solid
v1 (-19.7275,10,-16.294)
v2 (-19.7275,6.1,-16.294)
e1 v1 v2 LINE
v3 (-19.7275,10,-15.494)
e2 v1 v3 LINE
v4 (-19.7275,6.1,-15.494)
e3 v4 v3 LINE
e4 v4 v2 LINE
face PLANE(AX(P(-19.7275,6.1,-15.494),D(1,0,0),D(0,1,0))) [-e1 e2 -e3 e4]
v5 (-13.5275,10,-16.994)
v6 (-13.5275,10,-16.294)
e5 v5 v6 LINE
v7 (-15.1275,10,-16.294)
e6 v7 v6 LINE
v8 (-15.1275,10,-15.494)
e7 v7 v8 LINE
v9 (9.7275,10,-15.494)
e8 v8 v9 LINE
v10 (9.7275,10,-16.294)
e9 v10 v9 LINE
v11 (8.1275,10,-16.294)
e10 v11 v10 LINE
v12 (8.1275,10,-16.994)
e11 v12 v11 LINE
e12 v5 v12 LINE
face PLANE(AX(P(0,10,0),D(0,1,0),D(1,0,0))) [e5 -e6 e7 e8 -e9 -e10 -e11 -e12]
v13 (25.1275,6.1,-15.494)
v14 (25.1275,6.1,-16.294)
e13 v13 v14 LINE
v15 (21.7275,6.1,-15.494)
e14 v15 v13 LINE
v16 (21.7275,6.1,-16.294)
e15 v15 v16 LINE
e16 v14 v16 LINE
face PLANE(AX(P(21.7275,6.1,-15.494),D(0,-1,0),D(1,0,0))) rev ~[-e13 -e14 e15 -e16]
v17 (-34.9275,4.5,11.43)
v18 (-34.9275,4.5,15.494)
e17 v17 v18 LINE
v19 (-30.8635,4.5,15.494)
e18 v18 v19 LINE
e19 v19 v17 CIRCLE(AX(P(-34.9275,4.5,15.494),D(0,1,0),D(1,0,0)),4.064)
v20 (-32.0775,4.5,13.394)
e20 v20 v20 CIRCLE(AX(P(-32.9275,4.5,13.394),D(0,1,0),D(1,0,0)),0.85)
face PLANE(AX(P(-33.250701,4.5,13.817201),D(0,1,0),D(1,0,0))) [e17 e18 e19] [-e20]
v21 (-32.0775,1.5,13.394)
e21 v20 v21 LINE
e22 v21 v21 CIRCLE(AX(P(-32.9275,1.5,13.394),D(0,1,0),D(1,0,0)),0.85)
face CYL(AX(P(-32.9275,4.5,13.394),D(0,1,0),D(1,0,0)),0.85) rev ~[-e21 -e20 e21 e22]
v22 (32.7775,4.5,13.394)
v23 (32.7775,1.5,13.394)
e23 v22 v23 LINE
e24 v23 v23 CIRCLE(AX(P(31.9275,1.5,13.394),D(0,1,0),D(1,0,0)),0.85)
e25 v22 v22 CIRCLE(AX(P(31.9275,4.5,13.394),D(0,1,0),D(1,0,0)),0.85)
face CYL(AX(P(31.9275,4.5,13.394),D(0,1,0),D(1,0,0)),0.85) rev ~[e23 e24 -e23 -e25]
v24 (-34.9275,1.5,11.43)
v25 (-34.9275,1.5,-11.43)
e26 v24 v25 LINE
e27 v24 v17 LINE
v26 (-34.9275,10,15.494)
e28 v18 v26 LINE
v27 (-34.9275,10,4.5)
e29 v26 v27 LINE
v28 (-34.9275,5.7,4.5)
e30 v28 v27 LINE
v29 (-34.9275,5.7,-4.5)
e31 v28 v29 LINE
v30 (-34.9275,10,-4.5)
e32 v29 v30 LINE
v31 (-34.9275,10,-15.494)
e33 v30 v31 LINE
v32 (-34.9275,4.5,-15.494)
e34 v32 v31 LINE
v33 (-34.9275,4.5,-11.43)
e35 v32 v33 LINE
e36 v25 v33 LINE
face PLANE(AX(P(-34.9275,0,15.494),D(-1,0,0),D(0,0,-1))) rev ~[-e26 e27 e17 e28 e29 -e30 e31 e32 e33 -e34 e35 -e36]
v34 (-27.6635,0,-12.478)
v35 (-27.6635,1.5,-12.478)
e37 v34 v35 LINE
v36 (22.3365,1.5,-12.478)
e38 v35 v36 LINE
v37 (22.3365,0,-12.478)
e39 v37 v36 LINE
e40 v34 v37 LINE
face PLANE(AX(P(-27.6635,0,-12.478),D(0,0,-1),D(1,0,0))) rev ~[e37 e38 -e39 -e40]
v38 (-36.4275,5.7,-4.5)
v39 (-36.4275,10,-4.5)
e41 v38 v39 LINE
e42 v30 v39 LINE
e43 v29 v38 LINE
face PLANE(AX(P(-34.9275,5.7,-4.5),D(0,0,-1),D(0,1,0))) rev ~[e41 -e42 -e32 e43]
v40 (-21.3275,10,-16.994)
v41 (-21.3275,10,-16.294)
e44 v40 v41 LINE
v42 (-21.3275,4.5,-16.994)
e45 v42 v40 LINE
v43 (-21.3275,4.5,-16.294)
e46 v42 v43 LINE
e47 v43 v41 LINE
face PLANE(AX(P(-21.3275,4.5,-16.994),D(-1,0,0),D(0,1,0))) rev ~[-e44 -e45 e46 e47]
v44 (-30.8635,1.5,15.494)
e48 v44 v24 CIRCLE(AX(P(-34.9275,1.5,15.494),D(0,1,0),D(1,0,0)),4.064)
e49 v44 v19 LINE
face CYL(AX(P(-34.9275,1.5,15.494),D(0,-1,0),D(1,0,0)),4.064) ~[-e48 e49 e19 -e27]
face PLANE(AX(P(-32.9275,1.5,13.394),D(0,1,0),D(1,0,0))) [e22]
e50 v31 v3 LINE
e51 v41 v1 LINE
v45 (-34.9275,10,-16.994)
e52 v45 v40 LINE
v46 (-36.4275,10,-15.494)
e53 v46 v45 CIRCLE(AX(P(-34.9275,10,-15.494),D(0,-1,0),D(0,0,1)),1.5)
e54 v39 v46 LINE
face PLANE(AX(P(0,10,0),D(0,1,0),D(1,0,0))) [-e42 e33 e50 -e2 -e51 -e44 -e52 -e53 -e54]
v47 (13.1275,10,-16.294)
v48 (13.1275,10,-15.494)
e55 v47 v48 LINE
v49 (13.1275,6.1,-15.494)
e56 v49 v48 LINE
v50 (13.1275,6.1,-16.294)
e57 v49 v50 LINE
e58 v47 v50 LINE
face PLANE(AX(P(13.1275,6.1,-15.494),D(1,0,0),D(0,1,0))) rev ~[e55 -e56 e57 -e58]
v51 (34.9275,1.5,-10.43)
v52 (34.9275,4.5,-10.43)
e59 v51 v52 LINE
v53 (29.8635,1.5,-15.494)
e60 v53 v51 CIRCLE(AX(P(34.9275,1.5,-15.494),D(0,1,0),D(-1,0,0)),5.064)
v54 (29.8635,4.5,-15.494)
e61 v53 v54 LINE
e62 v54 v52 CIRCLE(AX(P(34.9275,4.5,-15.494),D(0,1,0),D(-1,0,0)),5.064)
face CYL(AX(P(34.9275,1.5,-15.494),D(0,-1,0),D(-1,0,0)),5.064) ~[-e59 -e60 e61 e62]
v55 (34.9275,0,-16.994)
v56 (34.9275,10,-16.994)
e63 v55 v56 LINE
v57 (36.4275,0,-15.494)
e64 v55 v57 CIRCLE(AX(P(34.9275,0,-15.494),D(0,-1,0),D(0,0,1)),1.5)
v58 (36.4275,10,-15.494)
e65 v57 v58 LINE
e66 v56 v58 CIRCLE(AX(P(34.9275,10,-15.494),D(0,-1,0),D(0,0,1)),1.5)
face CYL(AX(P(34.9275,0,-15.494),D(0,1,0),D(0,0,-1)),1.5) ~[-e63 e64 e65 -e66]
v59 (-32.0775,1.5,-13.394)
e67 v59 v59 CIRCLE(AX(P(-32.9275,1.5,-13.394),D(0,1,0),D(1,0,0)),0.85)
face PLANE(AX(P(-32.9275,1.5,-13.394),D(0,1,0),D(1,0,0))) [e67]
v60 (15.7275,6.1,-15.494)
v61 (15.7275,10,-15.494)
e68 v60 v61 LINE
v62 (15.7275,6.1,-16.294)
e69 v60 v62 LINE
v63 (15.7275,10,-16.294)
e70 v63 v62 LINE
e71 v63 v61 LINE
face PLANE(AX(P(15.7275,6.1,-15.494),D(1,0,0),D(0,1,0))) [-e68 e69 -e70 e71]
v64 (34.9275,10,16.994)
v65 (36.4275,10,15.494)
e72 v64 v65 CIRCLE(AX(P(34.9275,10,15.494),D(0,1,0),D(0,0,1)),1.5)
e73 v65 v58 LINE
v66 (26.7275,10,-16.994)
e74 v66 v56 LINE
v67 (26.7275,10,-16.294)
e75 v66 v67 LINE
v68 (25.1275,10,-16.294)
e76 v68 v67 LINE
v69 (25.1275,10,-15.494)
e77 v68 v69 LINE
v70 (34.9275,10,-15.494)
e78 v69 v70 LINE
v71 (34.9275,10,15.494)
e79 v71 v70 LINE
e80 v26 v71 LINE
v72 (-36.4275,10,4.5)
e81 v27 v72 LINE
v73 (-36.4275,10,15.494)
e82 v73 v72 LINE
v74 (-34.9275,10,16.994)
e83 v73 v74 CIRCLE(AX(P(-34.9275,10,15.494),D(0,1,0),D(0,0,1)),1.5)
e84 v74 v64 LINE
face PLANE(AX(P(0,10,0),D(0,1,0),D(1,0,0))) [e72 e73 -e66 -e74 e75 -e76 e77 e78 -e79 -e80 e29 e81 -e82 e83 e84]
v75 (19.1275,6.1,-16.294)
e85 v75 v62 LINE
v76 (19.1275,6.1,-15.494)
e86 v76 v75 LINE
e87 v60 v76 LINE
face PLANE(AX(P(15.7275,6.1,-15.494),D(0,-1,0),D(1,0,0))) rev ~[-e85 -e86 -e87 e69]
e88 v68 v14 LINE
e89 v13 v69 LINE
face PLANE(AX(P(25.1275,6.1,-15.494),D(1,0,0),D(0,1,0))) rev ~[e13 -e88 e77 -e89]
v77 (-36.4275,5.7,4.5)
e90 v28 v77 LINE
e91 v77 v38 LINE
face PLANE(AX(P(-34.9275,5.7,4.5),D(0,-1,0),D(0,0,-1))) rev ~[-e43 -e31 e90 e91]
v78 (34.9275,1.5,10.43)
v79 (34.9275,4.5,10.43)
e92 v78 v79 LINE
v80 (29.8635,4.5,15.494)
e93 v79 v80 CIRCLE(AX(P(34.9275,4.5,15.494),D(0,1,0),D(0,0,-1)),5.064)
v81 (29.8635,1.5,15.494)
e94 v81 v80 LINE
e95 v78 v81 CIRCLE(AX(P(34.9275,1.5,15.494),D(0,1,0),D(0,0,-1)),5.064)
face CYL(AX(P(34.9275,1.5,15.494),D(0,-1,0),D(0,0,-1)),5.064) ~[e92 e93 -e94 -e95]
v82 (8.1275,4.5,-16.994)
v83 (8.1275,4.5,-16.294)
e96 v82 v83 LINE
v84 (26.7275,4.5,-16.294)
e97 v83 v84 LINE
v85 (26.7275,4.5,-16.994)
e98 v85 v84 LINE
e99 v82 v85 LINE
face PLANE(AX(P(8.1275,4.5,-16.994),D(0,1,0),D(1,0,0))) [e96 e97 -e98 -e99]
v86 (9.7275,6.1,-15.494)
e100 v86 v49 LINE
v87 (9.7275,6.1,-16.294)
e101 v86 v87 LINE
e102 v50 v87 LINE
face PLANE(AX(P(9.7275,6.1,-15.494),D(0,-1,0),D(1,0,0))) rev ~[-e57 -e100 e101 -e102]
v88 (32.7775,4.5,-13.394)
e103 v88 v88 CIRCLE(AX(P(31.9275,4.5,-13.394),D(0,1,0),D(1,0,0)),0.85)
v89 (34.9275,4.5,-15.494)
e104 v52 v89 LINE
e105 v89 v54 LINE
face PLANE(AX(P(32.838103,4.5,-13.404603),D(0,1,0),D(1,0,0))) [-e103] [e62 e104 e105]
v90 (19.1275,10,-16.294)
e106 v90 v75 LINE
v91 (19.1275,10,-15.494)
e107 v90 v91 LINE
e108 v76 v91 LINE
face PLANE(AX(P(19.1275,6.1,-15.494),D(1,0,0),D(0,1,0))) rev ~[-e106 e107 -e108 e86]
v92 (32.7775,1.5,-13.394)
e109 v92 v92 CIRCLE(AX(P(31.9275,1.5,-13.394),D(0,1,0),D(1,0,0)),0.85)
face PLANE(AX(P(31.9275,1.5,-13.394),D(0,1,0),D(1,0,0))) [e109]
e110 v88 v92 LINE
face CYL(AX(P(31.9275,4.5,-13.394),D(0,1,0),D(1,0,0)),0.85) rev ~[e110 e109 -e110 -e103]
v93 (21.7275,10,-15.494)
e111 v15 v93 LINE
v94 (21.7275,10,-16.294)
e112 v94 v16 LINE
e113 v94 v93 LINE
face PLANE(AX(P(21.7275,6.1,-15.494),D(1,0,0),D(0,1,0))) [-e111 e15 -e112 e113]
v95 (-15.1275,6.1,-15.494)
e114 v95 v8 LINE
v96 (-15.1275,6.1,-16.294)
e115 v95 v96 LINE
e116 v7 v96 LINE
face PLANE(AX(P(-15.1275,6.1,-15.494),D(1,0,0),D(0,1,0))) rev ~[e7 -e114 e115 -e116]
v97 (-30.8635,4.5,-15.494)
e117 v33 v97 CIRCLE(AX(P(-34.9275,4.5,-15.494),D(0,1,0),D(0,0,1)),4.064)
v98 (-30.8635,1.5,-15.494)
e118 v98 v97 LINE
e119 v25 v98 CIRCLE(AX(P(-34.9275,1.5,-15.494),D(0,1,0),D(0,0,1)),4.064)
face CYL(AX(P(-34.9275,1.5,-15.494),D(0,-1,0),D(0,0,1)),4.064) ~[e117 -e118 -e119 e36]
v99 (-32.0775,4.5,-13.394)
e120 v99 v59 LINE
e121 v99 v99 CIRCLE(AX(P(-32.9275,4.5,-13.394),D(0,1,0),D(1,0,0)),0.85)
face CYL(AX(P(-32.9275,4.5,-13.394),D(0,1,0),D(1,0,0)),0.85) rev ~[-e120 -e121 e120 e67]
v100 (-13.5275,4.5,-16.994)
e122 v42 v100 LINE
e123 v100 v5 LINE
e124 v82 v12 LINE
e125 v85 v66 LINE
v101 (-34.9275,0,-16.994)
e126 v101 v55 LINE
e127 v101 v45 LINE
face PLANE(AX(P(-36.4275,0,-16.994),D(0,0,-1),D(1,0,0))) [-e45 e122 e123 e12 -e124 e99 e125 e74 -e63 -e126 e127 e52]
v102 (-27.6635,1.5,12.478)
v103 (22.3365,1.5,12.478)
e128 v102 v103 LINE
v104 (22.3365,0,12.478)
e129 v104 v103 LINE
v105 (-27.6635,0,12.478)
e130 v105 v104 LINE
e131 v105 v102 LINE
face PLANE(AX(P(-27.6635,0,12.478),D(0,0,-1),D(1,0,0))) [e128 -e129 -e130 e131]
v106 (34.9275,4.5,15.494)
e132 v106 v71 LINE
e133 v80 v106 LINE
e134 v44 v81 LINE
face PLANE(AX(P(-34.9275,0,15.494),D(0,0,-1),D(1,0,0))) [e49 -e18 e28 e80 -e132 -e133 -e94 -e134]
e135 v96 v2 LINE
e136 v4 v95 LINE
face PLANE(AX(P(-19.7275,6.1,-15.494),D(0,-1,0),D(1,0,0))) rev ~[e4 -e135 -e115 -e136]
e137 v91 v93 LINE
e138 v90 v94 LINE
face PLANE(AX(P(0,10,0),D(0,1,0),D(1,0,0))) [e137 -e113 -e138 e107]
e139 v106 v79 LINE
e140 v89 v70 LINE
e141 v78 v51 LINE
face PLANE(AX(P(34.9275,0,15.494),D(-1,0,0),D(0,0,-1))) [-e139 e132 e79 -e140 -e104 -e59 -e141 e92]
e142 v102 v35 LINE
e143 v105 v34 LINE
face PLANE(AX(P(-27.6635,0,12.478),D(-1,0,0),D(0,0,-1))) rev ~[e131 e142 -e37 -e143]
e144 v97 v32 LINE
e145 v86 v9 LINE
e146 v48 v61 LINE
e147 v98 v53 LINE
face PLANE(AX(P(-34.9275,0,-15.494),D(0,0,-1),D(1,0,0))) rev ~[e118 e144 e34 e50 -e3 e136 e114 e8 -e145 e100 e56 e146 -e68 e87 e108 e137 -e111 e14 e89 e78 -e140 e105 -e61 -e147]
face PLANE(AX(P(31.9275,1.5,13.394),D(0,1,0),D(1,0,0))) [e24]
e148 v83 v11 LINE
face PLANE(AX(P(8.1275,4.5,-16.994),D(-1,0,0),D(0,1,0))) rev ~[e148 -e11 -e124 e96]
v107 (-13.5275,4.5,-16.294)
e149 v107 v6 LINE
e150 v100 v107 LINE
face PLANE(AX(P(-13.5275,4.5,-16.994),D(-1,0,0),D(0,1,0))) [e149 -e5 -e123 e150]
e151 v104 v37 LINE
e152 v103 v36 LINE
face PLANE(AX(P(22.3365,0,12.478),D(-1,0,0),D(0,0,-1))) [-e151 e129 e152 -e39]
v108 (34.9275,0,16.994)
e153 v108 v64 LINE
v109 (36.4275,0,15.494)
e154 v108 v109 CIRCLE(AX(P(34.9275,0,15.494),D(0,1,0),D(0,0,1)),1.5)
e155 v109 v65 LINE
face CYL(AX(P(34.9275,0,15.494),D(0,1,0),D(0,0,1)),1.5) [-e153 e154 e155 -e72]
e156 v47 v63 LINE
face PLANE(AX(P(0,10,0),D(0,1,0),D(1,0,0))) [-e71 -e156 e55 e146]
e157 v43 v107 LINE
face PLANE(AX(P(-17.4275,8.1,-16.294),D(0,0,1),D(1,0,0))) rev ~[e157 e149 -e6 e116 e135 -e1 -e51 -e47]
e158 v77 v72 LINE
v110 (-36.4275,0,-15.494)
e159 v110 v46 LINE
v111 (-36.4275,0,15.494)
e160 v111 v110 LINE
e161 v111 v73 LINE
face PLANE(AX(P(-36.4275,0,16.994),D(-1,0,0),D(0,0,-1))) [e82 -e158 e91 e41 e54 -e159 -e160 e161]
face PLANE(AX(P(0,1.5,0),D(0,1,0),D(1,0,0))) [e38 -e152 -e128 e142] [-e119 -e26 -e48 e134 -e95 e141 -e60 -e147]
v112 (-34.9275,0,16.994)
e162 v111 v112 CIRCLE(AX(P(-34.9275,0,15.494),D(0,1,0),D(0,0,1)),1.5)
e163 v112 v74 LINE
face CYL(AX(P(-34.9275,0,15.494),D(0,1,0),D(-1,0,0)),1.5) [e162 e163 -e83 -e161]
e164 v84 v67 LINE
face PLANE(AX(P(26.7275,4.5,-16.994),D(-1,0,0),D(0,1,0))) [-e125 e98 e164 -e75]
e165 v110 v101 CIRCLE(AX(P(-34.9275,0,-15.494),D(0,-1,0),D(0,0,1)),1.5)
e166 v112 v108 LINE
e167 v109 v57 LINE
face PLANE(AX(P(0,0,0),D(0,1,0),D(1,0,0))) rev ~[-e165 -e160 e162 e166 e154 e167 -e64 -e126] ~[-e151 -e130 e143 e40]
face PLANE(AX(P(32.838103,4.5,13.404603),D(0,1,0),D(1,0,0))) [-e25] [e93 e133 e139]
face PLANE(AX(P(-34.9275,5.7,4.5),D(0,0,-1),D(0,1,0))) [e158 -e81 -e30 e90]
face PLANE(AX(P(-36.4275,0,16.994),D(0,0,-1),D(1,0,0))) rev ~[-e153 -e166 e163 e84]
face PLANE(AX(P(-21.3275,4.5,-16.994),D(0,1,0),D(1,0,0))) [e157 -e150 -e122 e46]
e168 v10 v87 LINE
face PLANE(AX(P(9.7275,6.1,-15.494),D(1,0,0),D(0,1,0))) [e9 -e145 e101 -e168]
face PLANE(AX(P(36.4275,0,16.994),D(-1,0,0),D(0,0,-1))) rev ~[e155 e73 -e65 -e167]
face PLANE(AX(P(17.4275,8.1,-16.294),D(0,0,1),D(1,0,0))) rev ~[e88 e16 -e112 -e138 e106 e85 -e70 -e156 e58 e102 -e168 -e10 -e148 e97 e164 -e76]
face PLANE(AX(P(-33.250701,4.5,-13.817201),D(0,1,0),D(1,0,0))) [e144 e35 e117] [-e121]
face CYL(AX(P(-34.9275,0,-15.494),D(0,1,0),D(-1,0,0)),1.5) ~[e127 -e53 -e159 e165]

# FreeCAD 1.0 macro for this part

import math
import FreeCAD as App
import Part
import Sketcher
from FreeCAD import Vector


def edges_at(feature, points):
    """Names of the edges that pass closest to the given points."""
    edges = feature.Shape.Edges
    near = lambda p: min(range(len(edges)), key=lambda i: edges[i].distToShape(Part.Vertex(*p))[0])
    return sorted({f"Edge{near(p) + 1}" for p in points})

doc = App.newDocument("Part")
params = doc.addObject("Spreadsheet::Sheet", "Params")
for row, (alias, value) in enumerate([
    ("pad1_length", "1.5 mm"),
    ("sketch2_width", "50 mm"),
    ("pad2_length", "10 mm"),
    ("fillet_radius", "1.5 mm"),
    ("pad3_length", "3 mm"),
    ("sketch5_height", "9 mm"),
    ("sketch5_width", "4.3 mm"),
    ("sketch6_height", "4 mm"),
    ("sketch6_width", "3.4 mm"),
    ("sketch7_height", "4 mm"),
    ("sketch7_width", "3.4 mm"),
    ("sketch8_height", "4 mm"),
    ("sketch8_width", "3.4 mm"),
    ("sketch9_height", "4 mm"),
    ("sketch9_width", "4.6 mm"),
    ("sketch10_width", "7.8 mm"),
    ("sketch10_width2", "18.6 mm"),
    ("sketch10_height", "7.2 mm"),
    ("pocket7_length", "0.7 mm"),
    ("sketch11_diameter", "1.7 mm"),
    ("pocket8_length", "3 mm"),
], start=1):
    params.set(f"A{row}", alias)
    params.set(f"B{row}", "=" + value)
    params.setAlias(f"B{row}", alias)

body = doc.addObject("PartDesign::Body", "Body")

# Sketch on XZ plane
sketch1 = body.newObject("Sketcher::SketchObject", "Sketch")
sketch1.AttachmentSupport = (doc.getObject("XZ_Plane"), [""])
sketch1.MapMode = "FlatFace"
sketch1.addGeometry(Part.LineSegment(Vector(-35, -15, 0), Vector(-35, 15, 0)), False)
sketch1.addGeometry(Part.LineSegment(Vector(-35, 15, 0), Vector(35, 15, 0)), False)
sketch1.addGeometry(Part.LineSegment(Vector(35, 15, 0), Vector(35, -15, 0)), False)
sketch1.addGeometry(Part.LineSegment(Vector(35, -15, 0), Vector(-35, -15, 0)), False)
sketch1.addConstraint(Sketcher.Constraint("Coincident", 0, 2, 1, 1))
sketch1.addConstraint(Sketcher.Constraint("Coincident", 1, 2, 2, 1))
sketch1.addConstraint(Sketcher.Constraint("Coincident", 2, 2, 3, 1))
sketch1.addConstraint(Sketcher.Constraint("Coincident", 3, 2, 0, 1))
sketch1.addConstraint(Sketcher.Constraint("Vertical", 0))
sketch1.addConstraint(Sketcher.Constraint("Horizontal", 1))
sketch1.addConstraint(Sketcher.Constraint("Vertical", 2))
sketch1.addConstraint(Sketcher.Constraint("Horizontal", 3))
sketch1.addConstraint(Sketcher.Constraint("Symmetric", 0, 2, 2, 2, -1, 1))
sketch1.addConstraint(Sketcher.Constraint("DistanceX", 1, 1, 1, 2, 69.855))
sketch1.addConstraint(Sketcher.Constraint("DistanceY", 0, 1, 0, 2, 30.988))
pad1 = body.newObject("PartDesign::Pad", "Pad")
pad1.Profile = sketch1
pad1.setExpression("Length", "Params.pad1_length")
pad1.Reversed = True

# Sketch on XZ plane
sketch2 = body.newObject("Sketcher::SketchObject", "Sketch001")
sketch2.AttachmentSupport = (doc.getObject("XZ_Plane"), [""])
sketch2.MapMode = "FlatFace"
sketch2.addGeometry(Part.LineSegment(Vector(-28, -12, 0), Vector(-28, 12, 0)), False)
sketch2.addGeometry(Part.LineSegment(Vector(-28, 12, 0), Vector(22, 12, 0)), False)
sketch2.addGeometry(Part.LineSegment(Vector(22, 12, 0), Vector(22, -12, 0)), False)
sketch2.addGeometry(Part.LineSegment(Vector(22, -12, 0), Vector(-28, -12, 0)), False)
sketch2.addConstraint(Sketcher.Constraint("Coincident", 0, 2, 1, 1))
sketch2.addConstraint(Sketcher.Constraint("Coincident", 1, 2, 2, 1))
sketch2.addConstraint(Sketcher.Constraint("Coincident", 2, 2, 3, 1))
sketch2.addConstraint(Sketcher.Constraint("Coincident", 3, 2, 0, 1))
sketch2.addConstraint(Sketcher.Constraint("Vertical", 0))
sketch2.addConstraint(Sketcher.Constraint("Horizontal", 1))
sketch2.addConstraint(Sketcher.Constraint("Vertical", 2))
sketch2.addConstraint(Sketcher.Constraint("Horizontal", 3))
sketch2.addConstraint(Sketcher.Constraint("DistanceX", 1, 1, 1, 2, 50.0))
sketch2.addConstraint(Sketcher.Constraint("DistanceY", 0, 1, 0, 2, 24.956))
sketch2.addConstraint(Sketcher.Constraint("DistanceY", -1, 1, 0, 2, 12.478))
sketch2.addConstraint(Sketcher.Constraint("DistanceX", 0, 2, -1, 1, 27.6635))
sketch2.setExpression("Constraints[8]", "Params.sketch2_width")
pocket1 = body.newObject("PartDesign::Pocket", "Pocket")
pocket1.Profile = sketch2
pocket1.Type = "UpToFirst"
body2 = doc.addObject("PartDesign::Body", "Body001")

# Sketch on XZ plane
sketch3 = body2.newObject("Sketcher::SketchObject", "Sketch002")
sketch3.AttachmentSupport = (doc.getObject("XZ_Plane001"), [""])
sketch3.MapMode = "FlatFace"
sketch3.addGeometry(Part.LineSegment(Vector(-36, -17, 0), Vector(-36, 17, 0)), False)
sketch3.addGeometry(Part.LineSegment(Vector(-36, 17, 0), Vector(36, 17, 0)), False)
sketch3.addGeometry(Part.LineSegment(Vector(36, 17, 0), Vector(36, -17, 0)), False)
sketch3.addGeometry(Part.LineSegment(Vector(36, -17, 0), Vector(-36, -17, 0)), False)
sketch3.addGeometry(Part.LineSegment(Vector(35, 15, 0), Vector(-35, 15, 0)), False)
sketch3.addGeometry(Part.LineSegment(Vector(-35, 15, 0), Vector(-35, -15, 0)), False)
sketch3.addGeometry(Part.LineSegment(Vector(-35, -15, 0), Vector(35, -15, 0)), False)
sketch3.addGeometry(Part.LineSegment(Vector(35, -15, 0), Vector(35, 15, 0)), False)
sketch3.addConstraint(Sketcher.Constraint("Coincident", 0, 2, 1, 1))
sketch3.addConstraint(Sketcher.Constraint("Coincident", 1, 2, 2, 1))
sketch3.addConstraint(Sketcher.Constraint("Coincident", 2, 2, 3, 1))
sketch3.addConstraint(Sketcher.Constraint("Coincident", 3, 2, 0, 1))
sketch3.addConstraint(Sketcher.Constraint("Coincident", 4, 2, 5, 1))
sketch3.addConstraint(Sketcher.Constraint("Coincident", 5, 2, 6, 1))
sketch3.addConstraint(Sketcher.Constraint("Coincident", 6, 2, 7, 1))
sketch3.addConstraint(Sketcher.Constraint("Coincident", 7, 2, 4, 1))
sketch3.addConstraint(Sketcher.Constraint("Vertical", 0))
sketch3.addConstraint(Sketcher.Constraint("Horizontal", 1))
sketch3.addConstraint(Sketcher.Constraint("Vertical", 2))
sketch3.addConstraint(Sketcher.Constraint("Horizontal", 3))
sketch3.addConstraint(Sketcher.Constraint("Horizontal", 4))
sketch3.addConstraint(Sketcher.Constraint("Vertical", 5))
sketch3.addConstraint(Sketcher.Constraint("Horizontal", 6))
sketch3.addConstraint(Sketcher.Constraint("Vertical", 7))
sketch3.addConstraint(Sketcher.Constraint("Symmetric", 0, 2, 2, 2, -1, 1))
sketch3.addConstraint(Sketcher.Constraint("Symmetric", 4, 2, 6, 2, -1, 1))
sketch3.addConstraint(Sketcher.Constraint("DistanceX", 0, 2, 4, 2, 1.5))
sketch3.addConstraint(Sketcher.Constraint("DistanceY", 4, 2, 0, 2, 1.5))
sketch3.addConstraint(Sketcher.Constraint("DistanceX", 1, 1, 1, 2, 72.855))
sketch3.addConstraint(Sketcher.Constraint("DistanceY", 0, 1, 0, 2, 33.988))
pad2 = body2.newObject("PartDesign::Pad", "Pad001")
pad2.Profile = sketch3
pad2.setExpression("Length", "Params.pad2_length")
pad2.Reversed = True
doc.recompute()

fillet = body2.newObject("PartDesign::Fillet", "Fillet")
fillet.Base = (pad2, edges_at(pad2, [
    (-36.428, 5, -16.994),
    (-36.428, 5, 16.994),
    (36.428, 5, 16.994),
    (36.428, 5, -16.994),
]))
fillet.setExpression("Radius", "Params.fillet_radius")
doc.recompute()

boolean = body.newObject("PartDesign::Boolean", "Boolean")
boolean.Type = "Fuse"
boolean.addObjects([body2])

# Sketch on XZ plane
sketch4 = body.newObject("Sketcher::SketchObject", "Sketch003")
sketch4.AttachmentSupport = (doc.getObject("XZ_Plane"), [""])
sketch4.MapMode = "FlatFace"
sketch4.AttachmentOffset = App.Placement(Vector(0, 0, -1.5), App.Rotation())
sketch4.addGeometry(Part.ArcOfCircle(Part.Circle(Vector(-34.9, 15.5, 0), Vector(0, 0, 1), 4.1), math.radians(-90), math.radians(0)), False)
sketch4.addGeometry(Part.LineSegment(Vector(-34.9, 11.4, 0), Vector(-34.9, 15.5, 0)), False)
sketch4.addGeometry(Part.LineSegment(Vector(-34.9, 15.5, 0), Vector(-30.9, 15.5, 0)), False)
sketch4.addGeometry(Part.ArcOfCircle(Part.Circle(Vector(-34.9, -15.5, 0), Vector(0, 0, 1), 4.1), math.radians(0), math.radians(90)), False)
sketch4.addGeometry(Part.LineSegment(Vector(-30.9, -15.5, 0), Vector(-34.9, -15.5, 0)), False)
sketch4.addGeometry(Part.LineSegment(Vector(-34.9, -15.5, 0), Vector(-34.9, -11.4, 0)), False)
sketch4.addGeometry(Part.LineSegment(Vector(34.9, -15.5, 0), Vector(29.9, -15.5, 0)), False)
sketch4.addGeometry(Part.ArcOfCircle(Part.Circle(Vector(34.9, -15.5, 0), Vector(0, 0, 1), 5.1), math.radians(90), math.radians(180)), False)
sketch4.addGeometry(Part.LineSegment(Vector(34.9, -10.4, 0), Vector(34.9, -15.5, 0)), False)
sketch4.addGeometry(Part.LineSegment(Vector(34.9, 15.5, 0), Vector(34.9, 10.4, 0)), False)
sketch4.addGeometry(Part.ArcOfCircle(Part.Circle(Vector(34.9, 15.5, 0), Vector(0, 0, 1), 5.1), math.radians(180), math.radians(270)), False)
sketch4.addGeometry(Part.LineSegment(Vector(29.9, 15.5, 0), Vector(34.9, 15.5, 0)), False)
sketch4.addConstraint(Sketcher.Constraint("Coincident", 0, 1, 1, 1))
sketch4.addConstraint(Sketcher.Constraint("Coincident", 1, 2, 2, 1))
sketch4.addConstraint(Sketcher.Constraint("Coincident", 2, 2, 0, 2))
sketch4.addConstraint(Sketcher.Constraint("Coincident", 3, 1, 4, 1))
sketch4.addConstraint(Sketcher.Constraint("Coincident", 4, 2, 5, 1))
sketch4.addConstraint(Sketcher.Constraint("Coincident", 5, 2, 3, 2))
sketch4.addConstraint(Sketcher.Constraint("Coincident", 6, 2, 7, 2))
sketch4.addConstraint(Sketcher.Constraint("Coincident", 7, 1, 8, 1))
sketch4.addConstraint(Sketcher.Constraint("Coincident", 8, 2, 6, 1))
sketch4.addConstraint(Sketcher.Constraint("Coincident", 9, 2, 10, 2))
sketch4.addConstraint(Sketcher.Constraint("Coincident", 10, 1, 11, 1))
sketch4.addConstraint(Sketcher.Constraint("Coincident", 11, 2, 9, 1))
sketch4.addConstraint(Sketcher.Constraint("Vertical", 1))
sketch4.addConstraint(Sketcher.Constraint("Horizontal", 2))
sketch4.addConstraint(Sketcher.Constraint("Horizontal", 4))
sketch4.addConstraint(Sketcher.Constraint("Vertical", 5))
sketch4.addConstraint(Sketcher.Constraint("Horizontal", 6))
sketch4.addConstraint(Sketcher.Constraint("Vertical", 8))
sketch4.addConstraint(Sketcher.Constraint("Vertical", 9))
sketch4.addConstraint(Sketcher.Constraint("Horizontal", 11))
sketch4.addConstraint(Sketcher.Constraint("Coincident", 1, 2, 0, 3))
sketch4.addConstraint(Sketcher.Constraint("Coincident", 4, 2, 3, 3))
sketch4.addConstraint(Sketcher.Constraint("Coincident", 8, 2, 7, 3))
sketch4.addConstraint(Sketcher.Constraint("Coincident", 11, 2, 10, 3))
sketch4.addConstraint(Sketcher.Constraint("Equal", 0, 3))
sketch4.addConstraint(Sketcher.Constraint("Equal", 7, 10))
sketch4.addConstraint(Sketcher.Constraint("Symmetric", 0, 3, 7, 3, -1, 1))
sketch4.addConstraint(Sketcher.Constraint("Symmetric", 3, 3, 10, 3, -1, 1))
sketch4.addConstraint(Sketcher.Constraint("Symmetric", 3, 3, 7, 3, -2))
sketch4.addConstraint(Sketcher.Constraint("Radius", 0, 4.064))
sketch4.addConstraint(Sketcher.Constraint("Radius", 7, 5.064))
sketch4.addConstraint(Sketcher.Constraint("DistanceY", -1, 1, 0, 1, 11.43))
sketch4.addConstraint(Sketcher.Constraint("DistanceX", 3, 3, 7, 3, 69.855))
pad3 = body.newObject("PartDesign::Pad", "Pad002")
pad3.Profile = sketch4
pad3.setExpression("Length", "Params.pad3_length")
pad3.Reversed = True

# Sketch on YZ plane
sketch5 = body.newObject("Sketcher::SketchObject", "Sketch004")
sketch5.AttachmentSupport = (doc.getObject("YZ_Plane"), [""])
sketch5.MapMode = "FlatFace"
sketch5.AttachmentOffset = App.Placement(Vector(0, 0, -34.9275), App.Rotation())
sketch5.addGeometry(Part.LineSegment(Vector(10, 4.5, 0), Vector(5.7, 4.5, 0)), False)
sketch5.addGeometry(Part.LineSegment(Vector(5.7, 4.5, 0), Vector(5.7, -4.5, 0)), False)
sketch5.addGeometry(Part.LineSegment(Vector(5.7, -4.5, 0), Vector(10, -4.5, 0)), False)
sketch5.addGeometry(Part.LineSegment(Vector(10, -4.5, 0), Vector(10, 4.5, 0)), False)
sketch5.addConstraint(Sketcher.Constraint("Coincident", 0, 2, 1, 1))
sketch5.addConstraint(Sketcher.Constraint("Coincident", 1, 2, 2, 1))
sketch5.addConstraint(Sketcher.Constraint("Coincident", 2, 2, 3, 1))
sketch5.addConstraint(Sketcher.Constraint("Coincident", 3, 2, 0, 1))
sketch5.addConstraint(Sketcher.Constraint("Horizontal", 0))
sketch5.addConstraint(Sketcher.Constraint("Vertical", 1))
sketch5.addConstraint(Sketcher.Constraint("Horizontal", 2))
sketch5.addConstraint(Sketcher.Constraint("Vertical", 3))
sketch5.addConstraint(Sketcher.Constraint("DistanceY", 1, 2, 1, 1, 9.0))
sketch5.addConstraint(Sketcher.Constraint("DistanceX", 0, 2, 0, 1, 4.3))
sketch5.addConstraint(Sketcher.Constraint("DistanceX", -1, 1, 2, 2, 10.0))
sketch5.addConstraint(Sketcher.Constraint("DistanceY", -1, 1, 0, 2, 4.5))
sketch5.setExpression("Constraints[8]", "Params.sketch5_height")
sketch5.setExpression("Constraints[9]", "Params.sketch5_width")
pocket2 = body.newObject("PartDesign::Pocket", "Pocket001")
pocket2.Profile = sketch5
pocket2.Type = "UpToFirst"

# Sketch on XY plane
sketch6 = body.newObject("Sketcher::SketchObject", "Sketch005")
sketch6.AttachmentSupport = (doc.getObject("XY_Plane"), [""])
sketch6.MapMode = "FlatFace"
sketch6.AttachmentOffset = App.Placement(Vector(0, 0, -15.494), App.Rotation())
sketch6.addGeometry(Part.LineSegment(Vector(9.7, 10.1, 0), Vector(9.7, 6.1, 0)), False)
sketch6.addGeometry(Part.LineSegment(Vector(9.7, 6.1, 0), Vector(13.1, 6.1, 0)), False)
sketch6.addGeometry(Part.LineSegment(Vector(13.1, 6.1, 0), Vector(13.1, 10.1, 0)), False)
sketch6.addGeometry(Part.LineSegment(Vector(13.1, 10.1, 0), Vector(9.7, 10.1, 0)), False)
sketch6.addConstraint(Sketcher.Constraint("Coincident", 0, 2, 1, 1))
sketch6.addConstraint(Sketcher.Constraint("Coincident", 1, 2, 2, 1))
sketch6.addConstraint(Sketcher.Constraint("Coincident", 2, 2, 3, 1))
sketch6.addConstraint(Sketcher.Constraint("Coincident", 3, 2, 0, 1))
sketch6.addConstraint(Sketcher.Constraint("Vertical", 0))
sketch6.addConstraint(Sketcher.Constraint("Horizontal", 1))
sketch6.addConstraint(Sketcher.Constraint("Vertical", 2))
sketch6.addConstraint(Sketcher.Constraint("Horizontal", 3))
sketch6.addConstraint(Sketcher.Constraint("DistanceY", 0, 2, 0, 1, 4.0))
sketch6.addConstraint(Sketcher.Constraint("DistanceX", 1, 1, 1, 2, 3.4))
sketch6.addConstraint(Sketcher.Constraint("DistanceY", -1, 1, 0, 2, 6.1))
sketch6.addConstraint(Sketcher.Constraint("DistanceX", -1, 1, 0, 2, 9.7275))
sketch6.setExpression("Constraints[8]", "Params.sketch6_height")
sketch6.setExpression("Constraints[9]", "Params.sketch6_width")
pocket3 = body.newObject("PartDesign::Pocket", "Pocket002")
pocket3.Profile = sketch6
pocket3.Type = "UpToFirst"

# Sketch on XY plane
sketch7 = body.newObject("Sketcher::SketchObject", "Sketch006")
sketch7.AttachmentSupport = (doc.getObject("XY_Plane"), [""])
sketch7.MapMode = "FlatFace"
sketch7.AttachmentOffset = App.Placement(Vector(0, 0, -15.494), App.Rotation())
sketch7.addGeometry(Part.LineSegment(Vector(15.7, 10.1, 0), Vector(15.7, 6.1, 0)), False)
sketch7.addGeometry(Part.LineSegment(Vector(15.7, 6.1, 0), Vector(19.1, 6.1, 0)), False)
sketch7.addGeometry(Part.LineSegment(Vector(19.1, 6.1, 0), Vector(19.1, 10.1, 0)), False)
sketch7.addGeometry(Part.LineSegment(Vector(19.1, 10.1, 0), Vector(15.7, 10.1, 0)), False)
sketch7.addConstraint(Sketcher.Constraint("Coincident", 0, 2, 1, 1))
sketch7.addConstraint(Sketcher.Constraint("Coincident", 1, 2, 2, 1))
sketch7.addConstraint(Sketcher.Constraint("Coincident", 2, 2, 3, 1))
sketch7.addConstraint(Sketcher.Constraint("Coincident", 3, 2, 0, 1))
sketch7.addConstraint(Sketcher.Constraint("Vertical", 0))
sketch7.addConstraint(Sketcher.Constraint("Horizontal", 1))
sketch7.addConstraint(Sketcher.Constraint("Vertical", 2))
sketch7.addConstraint(Sketcher.Constraint("Horizontal", 3))
sketch7.addConstraint(Sketcher.Constraint("DistanceY", 0, 2, 0, 1, 4.0))
sketch7.addConstraint(Sketcher.Constraint("DistanceX", 1, 1, 1, 2, 3.4))
sketch7.addConstraint(Sketcher.Constraint("DistanceY", -1, 1, 0, 2, 6.1))
sketch7.addConstraint(Sketcher.Constraint("DistanceX", -1, 1, 0, 2, 15.7275))
sketch7.setExpression("Constraints[8]", "Params.sketch7_height")
sketch7.setExpression("Constraints[9]", "Params.sketch7_width")
pocket4 = body.newObject("PartDesign::Pocket", "Pocket003")
pocket4.Profile = sketch7
pocket4.Type = "UpToFirst"

# Sketch on XY plane
sketch8 = body.newObject("Sketcher::SketchObject", "Sketch007")
sketch8.AttachmentSupport = (doc.getObject("XY_Plane"), [""])
sketch8.MapMode = "FlatFace"
sketch8.AttachmentOffset = App.Placement(Vector(0, 0, -15.494), App.Rotation())
sketch8.addGeometry(Part.LineSegment(Vector(21.7, 10.1, 0), Vector(21.7, 6.1, 0)), False)
sketch8.addGeometry(Part.LineSegment(Vector(21.7, 6.1, 0), Vector(25.1, 6.1, 0)), False)
sketch8.addGeometry(Part.LineSegment(Vector(25.1, 6.1, 0), Vector(25.1, 10.1, 0)), False)
sketch8.addGeometry(Part.LineSegment(Vector(25.1, 10.1, 0), Vector(21.7, 10.1, 0)), False)
sketch8.addConstraint(Sketcher.Constraint("Coincident", 0, 2, 1, 1))
sketch8.addConstraint(Sketcher.Constraint("Coincident", 1, 2, 2, 1))
sketch8.addConstraint(Sketcher.Constraint("Coincident", 2, 2, 3, 1))
sketch8.addConstraint(Sketcher.Constraint("Coincident", 3, 2, 0, 1))
sketch8.addConstraint(Sketcher.Constraint("Vertical", 0))
sketch8.addConstraint(Sketcher.Constraint("Horizontal", 1))
sketch8.addConstraint(Sketcher.Constraint("Vertical", 2))
sketch8.addConstraint(Sketcher.Constraint("Horizontal", 3))
sketch8.addConstraint(Sketcher.Constraint("DistanceY", 0, 2, 0, 1, 4.0))
sketch8.addConstraint(Sketcher.Constraint("DistanceX", 1, 1, 1, 2, 3.4))
sketch8.addConstraint(Sketcher.Constraint("DistanceY", -1, 1, 0, 2, 6.1))
sketch8.addConstraint(Sketcher.Constraint("DistanceX", -1, 1, 0, 2, 21.7275))
sketch8.setExpression("Constraints[8]", "Params.sketch8_height")
sketch8.setExpression("Constraints[9]", "Params.sketch8_width")
pocket5 = body.newObject("PartDesign::Pocket", "Pocket004")
pocket5.Profile = sketch8
pocket5.Type = "UpToFirst"

# Sketch on XY plane
sketch9 = body.newObject("Sketcher::SketchObject", "Sketch008")
sketch9.AttachmentSupport = (doc.getObject("XY_Plane"), [""])
sketch9.MapMode = "FlatFace"
sketch9.AttachmentOffset = App.Placement(Vector(0, 0, -15.494), App.Rotation())
sketch9.addGeometry(Part.LineSegment(Vector(-19.7, 10.1, 0), Vector(-19.7, 6.1, 0)), False)
sketch9.addGeometry(Part.LineSegment(Vector(-19.7, 6.1, 0), Vector(-15.1, 6.1, 0)), False)
sketch9.addGeometry(Part.LineSegment(Vector(-15.1, 6.1, 0), Vector(-15.1, 10.1, 0)), False)
sketch9.addGeometry(Part.LineSegment(Vector(-15.1, 10.1, 0), Vector(-19.7, 10.1, 0)), False)
sketch9.addConstraint(Sketcher.Constraint("Coincident", 0, 2, 1, 1))
sketch9.addConstraint(Sketcher.Constraint("Coincident", 1, 2, 2, 1))
sketch9.addConstraint(Sketcher.Constraint("Coincident", 2, 2, 3, 1))
sketch9.addConstraint(Sketcher.Constraint("Coincident", 3, 2, 0, 1))
sketch9.addConstraint(Sketcher.Constraint("Vertical", 0))
sketch9.addConstraint(Sketcher.Constraint("Horizontal", 1))
sketch9.addConstraint(Sketcher.Constraint("Vertical", 2))
sketch9.addConstraint(Sketcher.Constraint("Horizontal", 3))
sketch9.addConstraint(Sketcher.Constraint("DistanceY", 0, 2, 0, 1, 4.0))
sketch9.addConstraint(Sketcher.Constraint("DistanceX", 1, 1, 1, 2, 4.6))
sketch9.addConstraint(Sketcher.Constraint("DistanceY", -1, 1, 0, 2, 6.1))
sketch9.addConstraint(Sketcher.Constraint("DistanceX", 0, 2, -1, 1, 19.7275))
sketch9.setExpression("Constraints[8]", "Params.sketch9_height")
sketch9.setExpression("Constraints[9]", "Params.sketch9_width")
pocket6 = body.newObject("PartDesign::Pocket", "Pocket005")
pocket6.Profile = sketch9
pocket6.Type = "UpToFirst"

# Sketch on XY plane
sketch10 = body.newObject("Sketcher::SketchObject", "Sketch009")
sketch10.AttachmentSupport = (doc.getObject("XY_Plane"), [""])
sketch10.MapMode = "FlatFace"
sketch10.AttachmentOffset = App.Placement(Vector(0, 0, -16.994), App.Rotation())
sketch10.addGeometry(Part.LineSegment(Vector(-21, 12, 0), Vector(-21, 4, 0)), False)
sketch10.addGeometry(Part.LineSegment(Vector(-21, 4, 0), Vector(-14, 4, 0)), False)
sketch10.addGeometry(Part.LineSegment(Vector(-14, 4, 0), Vector(-14, 12, 0)), False)
sketch10.addGeometry(Part.LineSegment(Vector(-14, 12, 0), Vector(-21, 12, 0)), False)
sketch10.addGeometry(Part.LineSegment(Vector(8, 12, 0), Vector(8, 4, 0)), False)
sketch10.addGeometry(Part.LineSegment(Vector(8, 4, 0), Vector(27, 4, 0)), False)
sketch10.addGeometry(Part.LineSegment(Vector(27, 4, 0), Vector(27, 12, 0)), False)
sketch10.addGeometry(Part.LineSegment(Vector(27, 12, 0), Vector(8, 12, 0)), False)
sketch10.addConstraint(Sketcher.Constraint("Coincident", 0, 2, 1, 1))
sketch10.addConstraint(Sketcher.Constraint("Coincident", 1, 2, 2, 1))
sketch10.addConstraint(Sketcher.Constraint("Coincident", 2, 2, 3, 1))
sketch10.addConstraint(Sketcher.Constraint("Coincident", 3, 2, 0, 1))
sketch10.addConstraint(Sketcher.Constraint("Coincident", 4, 2, 5, 1))
sketch10.addConstraint(Sketcher.Constraint("Coincident", 5, 2, 6, 1))
sketch10.addConstraint(Sketcher.Constraint("Coincident", 6, 2, 7, 1))
sketch10.addConstraint(Sketcher.Constraint("Coincident", 7, 2, 4, 1))
sketch10.addConstraint(Sketcher.Constraint("Vertical", 0))
sketch10.addConstraint(Sketcher.Constraint("Horizontal", 1))
sketch10.addConstraint(Sketcher.Constraint("Vertical", 2))
sketch10.addConstraint(Sketcher.Constraint("Horizontal", 3))
sketch10.addConstraint(Sketcher.Constraint("Vertical", 4))
sketch10.addConstraint(Sketcher.Constraint("Horizontal", 5))
sketch10.addConstraint(Sketcher.Constraint("Vertical", 6))
sketch10.addConstraint(Sketcher.Constraint("Horizontal", 7))
sketch10.addConstraint(Sketcher.Constraint("Horizontal", 1, 2, 4, 2))
sketch10.addConstraint(Sketcher.Constraint("Horizontal", 3, 2, 6, 2))
sketch10.addConstraint(Sketcher.Constraint("DistanceX", 1, 1, 1, 2, 7.8))
sketch10.addConstraint(Sketcher.Constraint("DistanceX", 5, 1, 5, 2, 18.6))
sketch10.addConstraint(Sketcher.Constraint("DistanceY", 0, 2, 0, 1, 7.2))
sketch10.addConstraint(Sketcher.Constraint("DistanceY", -1, 1, 0, 2, 4.5))
sketch10.addConstraint(Sketcher.Constraint("DistanceX", 1, 2, 4, 2, 21.655))
sketch10.addConstraint(Sketcher.Constraint("DistanceX", 0, 2, -1, 1, 21.3275))
sketch10.setExpression("Constraints[18]", "Params.sketch10_width")
sketch10.setExpression("Constraints[19]", "Params.sketch10_width2")
sketch10.setExpression("Constraints[20]", "Params.sketch10_height")
pocket7 = body.newObject("PartDesign::Pocket", "Pocket006")
pocket7.Profile = sketch10
pocket7.setExpression("Length", "Params.pocket7_length")
pocket7.Reversed = True

# Sketch on XZ plane
sketch11 = body.newObject("Sketcher::SketchObject", "Sketch010")
sketch11.AttachmentSupport = (doc.getObject("XZ_Plane"), [""])
sketch11.MapMode = "FlatFace"
sketch11.AttachmentOffset = App.Placement(Vector(0, 0, -4.5), App.Rotation())
sketch11.addGeometry(Part.Circle(Vector(-32.9, 13.4, 0), Vector(0, 0, 1), 0.8), False)
sketch11.addGeometry(Part.Circle(Vector(-32.9, -13.4, 0), Vector(0, 0, 1), 0.8), False)
sketch11.addGeometry(Part.Circle(Vector(31.9, 13.4, 0), Vector(0, 0, 1), 0.8), False)
sketch11.addGeometry(Part.Circle(Vector(31.9, -13.4, 0), Vector(0, 0, 1), 0.8), False)
sketch11.addConstraint(Sketcher.Constraint("Equal", 0, 1))
sketch11.addConstraint(Sketcher.Constraint("Equal", 1, 2))
sketch11.addConstraint(Sketcher.Constraint("Equal", 2, 3))
sketch11.addConstraint(Sketcher.Constraint("Symmetric", 0, 3, 1, 3, -1))
sketch11.addConstraint(Sketcher.Constraint("Symmetric", 2, 3, 3, 3, -1))
sketch11.addConstraint(Sketcher.Constraint("Horizontal", 0, 3, 2, 3))
sketch11.addConstraint(Sketcher.Constraint("Diameter", 0, 1.7))
sketch11.addConstraint(Sketcher.Constraint("DistanceY", -1, 1, 0, 3, 13.394))
sketch11.addConstraint(Sketcher.Constraint("DistanceX", 0, 3, 2, 3, 64.855))
sketch11.addConstraint(Sketcher.Constraint("DistanceX", 0, 3, -1, 1, 32.9275))
sketch11.setExpression("Constraints[6]", "Params.sketch11_diameter")
pocket8 = body.newObject("PartDesign::Pocket", "Pocket007")
pocket8.Profile = sketch11
pocket8.setExpression("Length", "Params.pocket8_length")
pocket8.Reversed = True

doc.recompute()
